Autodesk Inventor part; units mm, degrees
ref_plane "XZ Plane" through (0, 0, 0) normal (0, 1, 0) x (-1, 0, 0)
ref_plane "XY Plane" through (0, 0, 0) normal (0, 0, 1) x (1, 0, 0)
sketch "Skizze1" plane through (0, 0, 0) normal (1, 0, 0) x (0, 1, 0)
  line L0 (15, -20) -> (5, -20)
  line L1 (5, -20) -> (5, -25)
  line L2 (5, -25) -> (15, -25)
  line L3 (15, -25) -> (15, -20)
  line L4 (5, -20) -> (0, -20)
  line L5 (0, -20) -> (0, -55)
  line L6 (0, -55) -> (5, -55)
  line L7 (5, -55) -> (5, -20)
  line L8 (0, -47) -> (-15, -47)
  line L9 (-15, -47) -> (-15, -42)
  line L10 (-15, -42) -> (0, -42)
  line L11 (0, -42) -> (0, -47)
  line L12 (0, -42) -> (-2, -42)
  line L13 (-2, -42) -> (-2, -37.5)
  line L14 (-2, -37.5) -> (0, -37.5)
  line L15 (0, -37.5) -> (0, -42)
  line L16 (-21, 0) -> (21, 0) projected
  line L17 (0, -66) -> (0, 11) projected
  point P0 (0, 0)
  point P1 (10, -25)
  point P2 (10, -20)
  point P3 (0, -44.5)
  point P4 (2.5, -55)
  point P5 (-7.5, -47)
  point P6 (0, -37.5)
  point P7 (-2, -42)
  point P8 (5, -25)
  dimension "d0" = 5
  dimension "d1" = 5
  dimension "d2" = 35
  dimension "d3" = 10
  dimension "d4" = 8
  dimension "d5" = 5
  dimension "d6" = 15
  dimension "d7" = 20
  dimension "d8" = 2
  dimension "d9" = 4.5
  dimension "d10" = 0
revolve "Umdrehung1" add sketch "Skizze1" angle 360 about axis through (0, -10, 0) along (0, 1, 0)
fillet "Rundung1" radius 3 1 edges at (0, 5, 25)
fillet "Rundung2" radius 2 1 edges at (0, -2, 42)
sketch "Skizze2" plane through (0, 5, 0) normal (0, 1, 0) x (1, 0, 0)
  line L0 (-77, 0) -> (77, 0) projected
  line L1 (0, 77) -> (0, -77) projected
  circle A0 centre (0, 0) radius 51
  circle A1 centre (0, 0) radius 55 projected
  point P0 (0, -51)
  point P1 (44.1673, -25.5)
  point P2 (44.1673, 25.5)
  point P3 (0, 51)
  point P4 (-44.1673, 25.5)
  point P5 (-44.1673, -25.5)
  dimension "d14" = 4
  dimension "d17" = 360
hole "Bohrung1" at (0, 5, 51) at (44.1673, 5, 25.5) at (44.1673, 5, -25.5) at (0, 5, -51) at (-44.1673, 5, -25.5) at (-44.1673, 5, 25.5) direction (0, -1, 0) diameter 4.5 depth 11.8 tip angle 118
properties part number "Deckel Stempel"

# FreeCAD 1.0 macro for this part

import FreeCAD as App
import Part
import Sketcher

V = App.Vector
Q = App.Units.Quantity


def edges_at(feature, points):
    """Names of the edges that pass closest to the given points."""
    edges = feature.Shape.Edges
    near = lambda p: min(range(len(edges)), key=lambda i: edges[i].distToShape(Part.Vertex(*p))[0])
    return sorted({f"Edge{near(p) + 1}" for p in points})


def add_polygon(sketch, points):
    """Adds a closed chain of lines whose ends are joined by coincident constraints."""
    first, n = sketch.GeometryCount, len(points)
    for a, b in zip(points, points[1:] + points[:1]):
        sketch.addGeometry(Part.LineSegment(App.Vector(*a, 0), App.Vector(*b, 0)), False)
    for i in range(n):
        sketch.addConstraint(Sketcher.Constraint("Coincident", first + i, 2, first + (i + 1) % n, 1))

doc = App.newDocument("Part")
params = doc.addObject("Spreadsheet::Sheet", "Params")
for row, (alias, value) in enumerate([
    ("sketch1_width", "15 mm"),
    ("sketch1_width2", "2 mm"),
    ("sketch1_width3", "5 mm"),
    ("sketch1_height", "8 mm"),
    ("sketch1_height2", "4.5 mm"),
    ("revolution_angle", "360 deg"),
    ("fillet_radius", "3 mm"),
    ("fillet2_radius", "2 mm"),
    ("sketch2_diameter", "4.5 mm"),
    ("hole_diameter", "4.5 mm"),
    ("hole_depth", "11.8 mm"),
], start=1):
    params.set(f"A{row}", alias)
    params.set(f"B{row}", "=" + value)
    params.setAlias(f"B{row}", alias)

body = doc.addObject("PartDesign::Body", "Body")

sketch1 = body.newObject("Sketcher::SketchObject", "Sketch")
sketch1.AttachmentSupport = (doc.getObject("YZ_Plane"), [""])
sketch1.MapMode = "FlatFace"
add_polygon(sketch1, [(15, -25), (15, -20), (0, -20), (0, -37.5), (-2, -37.5), (-2, -42), (-15, -42), (-15, -47), (0, -47), (0, -55), (5, -55), (5, -25)])
sketch1.addConstraint(Sketcher.Constraint("Vertical", 0))
sketch1.addConstraint(Sketcher.Constraint("Horizontal", 1))
sketch1.addConstraint(Sketcher.Constraint("Vertical", 2))
sketch1.addConstraint(Sketcher.Constraint("Horizontal", 3))
sketch1.addConstraint(Sketcher.Constraint("Vertical", 4))
sketch1.addConstraint(Sketcher.Constraint("Horizontal", 5))
sketch1.addConstraint(Sketcher.Constraint("Vertical", 6))
sketch1.addConstraint(Sketcher.Constraint("Horizontal", 7))
sketch1.addConstraint(Sketcher.Constraint("Vertical", 8))
sketch1.addConstraint(Sketcher.Constraint("Horizontal", 9))
sketch1.addConstraint(Sketcher.Constraint("Vertical", 10))
sketch1.addConstraint(Sketcher.Constraint("Horizontal", 11))
sketch1.addConstraint(Sketcher.Constraint("PointOnObject", 1, 2, -2))
sketch1.addConstraint(Sketcher.Constraint("PointOnObject", 7, 2, -2))
sketch1.addConstraint(Sketcher.Constraint("Equal", 1, 7))
sketch1.addConstraint(Sketcher.Constraint("Equal", 9, 0))
sketch1.addConstraint(Sketcher.Constraint("Equal", 0, 6))
sketch1.addConstraint(Sketcher.Constraint("DistanceX", 1, 2, 1, 1, Q("15 mm")))
sketch1.addConstraint(Sketcher.Constraint("DistanceX", 3, 2, 3, 1, Q("2 mm")))
sketch1.addConstraint(Sketcher.Constraint("DistanceX", 9, 1, 9, 2, Q("5 mm")))
sketch1.addConstraint(Sketcher.Constraint("DistanceY", 8, 2, 8, 1, Q("8 mm")))
sketch1.addConstraint(Sketcher.Constraint("DistanceY", 4, 2, 4, 1, Q("4.5 mm")))
sketch1.addConstraint(Sketcher.Constraint("DistanceY", 0, 2, -1, 1, Q("20 mm")))
sketch1.addConstraint(Sketcher.Constraint("DistanceY", 10, 1, 10, 2, Q("30 mm")))
sketch1.setExpression("Constraints[29]", "Params.sketch1_width")
sketch1.setExpression("Constraints[30]", "Params.sketch1_width2")
sketch1.setExpression("Constraints[31]", "Params.sketch1_width3")
sketch1.setExpression("Constraints[32]", "Params.sketch1_height")
sketch1.setExpression("Constraints[33]", "Params.sketch1_height2")
revolution = body.newObject("PartDesign::Revolution", "Revolution")
revolution.Profile = sketch1
revolution.ReferenceAxis = (sketch1, ["H_Axis"])
revolution.setExpression("Angle", "Params.revolution_angle")
doc.recompute()

fillet = body.newObject("PartDesign::Fillet", "Fillet")
fillet.Base = (revolution, edges_at(revolution, [(0, 5, 25)]))
fillet.setExpression("Radius", "Params.fillet_radius")
doc.recompute()

fillet2 = body.newObject("PartDesign::Fillet", "Fillet001")
fillet2.Base = (fillet, edges_at(fillet, [(0, -2, 42)]))
fillet2.setExpression("Radius", "Params.fillet2_radius")

sketch2 = body.newObject("Sketcher::SketchObject", "Sketch001")
sketch2.AttachmentSupport = (doc.getObject("XZ_Plane"), [""])
sketch2.MapMode = "FlatFace"
sketch2.AttachmentOffset = App.Placement(V(0, 0, -5), App.Rotation())
sketch2.addGeometry(Part.Circle(V(0, 51, 0), V(0, 0, 1), 2.25), False)
sketch2.addGeometry(Part.Circle(V(44.1673, 25.5, 0), V(0, 0, 1), 2.25), False)
sketch2.addGeometry(Part.Circle(V(44.1673, -25.5, 0), V(0, 0, 1), 2.25), False)
sketch2.addGeometry(Part.Circle(V(0, -51, 0), V(0, 0, 1), 2.25), False)
sketch2.addGeometry(Part.Circle(V(-44.1673, -25.5, 0), V(0, 0, 1), 2.25), False)
sketch2.addGeometry(Part.Circle(V(-44.1673, 25.5, 0), V(0, 0, 1), 2.25), False)
sketch2.addConstraint(Sketcher.Constraint("Equal", 0, 1))
sketch2.addConstraint(Sketcher.Constraint("Equal", 1, 2))
sketch2.addConstraint(Sketcher.Constraint("Equal", 2, 3))
sketch2.addConstraint(Sketcher.Constraint("Equal", 3, 4))
sketch2.addConstraint(Sketcher.Constraint("Equal", 4, 5))
sketch2.addConstraint(Sketcher.Constraint("Symmetric", 0, 3, 3, 3, -1, 1))
sketch2.addConstraint(Sketcher.Constraint("Symmetric", 1, 3, 4, 3, -1, 1))
sketch2.addConstraint(Sketcher.Constraint("Symmetric", 2, 3, 5, 3, -1, 1))
sketch2.addConstraint(Sketcher.Constraint("Symmetric", 2, 3, 4, 3, -2))
sketch2.addConstraint(Sketcher.Constraint("PointOnObject", 0, 3, -2))
sketch2.addConstraint(Sketcher.Constraint("Diameter", 0, Q("4.5 mm")))
sketch2.addConstraint(Sketcher.Constraint("DistanceY", -1, 1, 0, 3, Q("51 mm")))
sketch2.addConstraint(Sketcher.Constraint("DistanceY", 2, 3, 1, 3, Q("51 mm")))
sketch2.addConstraint(Sketcher.Constraint("DistanceX", -1, 1, 1, 3, Q("44.1673 mm")))
sketch2.setExpression("Constraints[10]", "Params.sketch2_diameter")
doc.recompute()
hole = body.newObject("PartDesign::Hole", "Hole")
hole.Profile = sketch2
hole.ThreadType = "None"
hole.setExpression("Diameter", "Params.hole_diameter")
hole.DepthType = "Dimension"
hole.setExpression("Depth", "Params.hole_depth")
hole.DrillPoint = "Angled"
hole.DrillPointAngle = 118
hole.Reversed = True

doc.recompute()
